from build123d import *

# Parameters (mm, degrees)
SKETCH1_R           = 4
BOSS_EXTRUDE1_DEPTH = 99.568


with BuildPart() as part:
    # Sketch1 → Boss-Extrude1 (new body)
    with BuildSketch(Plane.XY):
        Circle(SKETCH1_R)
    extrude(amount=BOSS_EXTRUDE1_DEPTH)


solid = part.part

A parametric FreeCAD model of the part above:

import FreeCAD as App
import Part
import Sketcher
Q = App.Units.Quantity

doc = App.newDocument("Part")
body = doc.addObject("PartDesign::Body", "Body")

# Sketch on XY plane
sketch1 = body.newObject("Sketcher::SketchObject", "Sketch")
sketch1.AttachmentSupport = (doc.getObject("XY_Plane"), [""])
sketch1.MapMode = "FlatFace"
sketch1.addGeometry(Part.Circle(App.Vector(0, 0, 0), App.Vector(0, 0, 1), 4), False)
sketch1.addConstraint([
    Sketcher.Constraint("Coincident", 0, 3, -1, 1),
    Sketcher.Constraint("Diameter", 0, Q("8 mm")),
])
pad1 = body.newObject("PartDesign::Pad", "Pad")
pad1.Profile = sketch1
pad1.Length = 99.568

doc.recompute()
